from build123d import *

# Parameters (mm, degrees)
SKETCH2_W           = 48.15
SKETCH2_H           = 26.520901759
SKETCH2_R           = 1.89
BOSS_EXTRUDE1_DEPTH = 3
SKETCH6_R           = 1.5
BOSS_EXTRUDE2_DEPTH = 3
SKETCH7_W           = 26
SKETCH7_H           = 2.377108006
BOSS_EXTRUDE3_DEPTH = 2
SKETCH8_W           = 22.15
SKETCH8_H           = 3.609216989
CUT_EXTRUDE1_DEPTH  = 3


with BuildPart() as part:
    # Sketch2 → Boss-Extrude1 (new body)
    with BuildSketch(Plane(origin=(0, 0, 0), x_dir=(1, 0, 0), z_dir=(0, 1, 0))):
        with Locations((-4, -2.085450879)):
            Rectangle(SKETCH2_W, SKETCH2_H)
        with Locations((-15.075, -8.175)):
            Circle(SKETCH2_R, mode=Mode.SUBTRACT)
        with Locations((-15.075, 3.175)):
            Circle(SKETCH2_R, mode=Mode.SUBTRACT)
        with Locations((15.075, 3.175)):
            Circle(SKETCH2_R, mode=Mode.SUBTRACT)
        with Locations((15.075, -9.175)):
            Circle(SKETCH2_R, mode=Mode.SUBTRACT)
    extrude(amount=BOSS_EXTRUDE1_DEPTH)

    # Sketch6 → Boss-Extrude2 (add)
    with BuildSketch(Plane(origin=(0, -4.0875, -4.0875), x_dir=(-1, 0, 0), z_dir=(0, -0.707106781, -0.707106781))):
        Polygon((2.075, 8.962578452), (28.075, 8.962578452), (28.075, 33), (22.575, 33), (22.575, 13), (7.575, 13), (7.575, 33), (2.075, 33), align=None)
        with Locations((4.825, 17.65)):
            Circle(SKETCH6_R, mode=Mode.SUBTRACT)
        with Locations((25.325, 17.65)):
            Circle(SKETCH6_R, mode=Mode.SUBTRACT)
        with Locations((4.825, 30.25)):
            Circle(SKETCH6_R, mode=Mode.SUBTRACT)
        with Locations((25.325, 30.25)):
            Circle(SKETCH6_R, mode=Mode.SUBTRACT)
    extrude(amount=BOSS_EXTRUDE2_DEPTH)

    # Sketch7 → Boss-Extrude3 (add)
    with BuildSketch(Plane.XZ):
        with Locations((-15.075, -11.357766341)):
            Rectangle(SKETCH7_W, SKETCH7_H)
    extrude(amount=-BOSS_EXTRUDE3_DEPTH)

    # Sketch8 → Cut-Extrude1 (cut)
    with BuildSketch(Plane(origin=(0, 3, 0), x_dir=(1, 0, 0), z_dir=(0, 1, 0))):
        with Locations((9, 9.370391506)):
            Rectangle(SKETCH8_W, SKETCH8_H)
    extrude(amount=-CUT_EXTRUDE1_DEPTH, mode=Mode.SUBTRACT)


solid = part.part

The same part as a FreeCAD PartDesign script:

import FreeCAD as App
import Part
import Sketcher
from FreeCAD import Vector
Q = App.Units.Quantity

doc = App.newDocument("Part")
body = doc.addObject("PartDesign::Body", "Body")

# Sketch on XZ plane
sketch1 = body.newObject("Sketcher::SketchObject", "Sketch")
sketch1.AttachmentSupport = (doc.getObject("XZ_Plane"), [""])
sketch1.MapMode = "FlatFace"
sketch1.addGeometry([
    Part.LineSegment(Vector(-28.1, -11.2, 0), Vector(-28.1, 15.3, 0)),  # 0
    Part.LineSegment(Vector(-28.1, 15.3, 0), Vector(20.1, 15.3, 0)),  # 1
    Part.LineSegment(Vector(20.1, 15.3, 0), Vector(20.1, -11.2, 0)),  # 2
    Part.LineSegment(Vector(20.1, -11.2, 0), Vector(-28.1, -11.2, 0)),  # 3
    Part.Circle(Vector(-15.1, 8.2, 0), Vector(0, 0, 1), 1.9),  # 4
    Part.Circle(Vector(15.1, 9.2, 0), Vector(0, 0, 1), 1.9),  # 5
    Part.Circle(Vector(-15.1, -3.2, 0), Vector(0, 0, 1), 1.9),  # 6
    Part.Circle(Vector(15.1, -3.2, 0), Vector(0, 0, 1), 1.9),  # 7
], False)
sketch1.addConstraint([
    Sketcher.Constraint("Coincident", 0, 2, 1, 1),
    Sketcher.Constraint("Coincident", 1, 2, 2, 1),
    Sketcher.Constraint("Coincident", 2, 2, 3, 1),
    Sketcher.Constraint("Coincident", 3, 2, 0, 1),
    Sketcher.Constraint("Vertical", 0),
    Sketcher.Constraint("Horizontal", 1),
    Sketcher.Constraint("Vertical", 2),
    Sketcher.Constraint("Horizontal", 3),
    Sketcher.Constraint("Equal", 4, 5),
    Sketcher.Constraint("Equal", 5, 6),
    Sketcher.Constraint("Equal", 6, 7),
    Sketcher.Constraint("Symmetric", 6, 3, 7, 3, -2),
    Sketcher.Constraint("Vertical", 4, 3, 6, 3),
    Sketcher.Constraint("Vertical", 5, 3, 7, 3),
    Sketcher.Constraint("Diameter", 4, Q("3.78 mm")),
    Sketcher.Constraint("DistanceY", 4, 3, 5, 3, Q("1 mm")),
    Sketcher.Constraint("DistanceX", 0, 2, 4, 3, Q("13 mm")),
    Sketcher.Constraint("DistanceX", 5, 3, 1, 2, Q("5 mm")),
    Sketcher.Constraint("DistanceY", 2, 2, 7, 3, Q("8 mm")),
    Sketcher.Constraint("DistanceX", 1, 1, 1, 2, Q("48.15 mm")),
    Sketcher.Constraint("DistanceY", 6, 3, 4, 3, Q("11.35 mm")),
    Sketcher.Constraint("DistanceY", 0, 1, 0, 2, Q("26.520902 mm")),
    Sketcher.Constraint("DistanceY", -1, 1, 4, 3, Q("8.175 mm")),
])
pad1 = body.newObject("PartDesign::Pad", "Pad")
pad1.Profile = sketch1
pad1.Length = 3
pad1.Reversed = True

# Sketch on an angled plane
sketch2 = body.newObject("Sketcher::SketchObject", "Sketch001")
sketch2.Placement = App.Placement(Vector(0, -4.0875, -4.0875), App.Rotation(Vector(-1, 0, 0), Vector(0, 0.707106781, -0.707106781), Vector(0, -0.707106781, -0.707106781), "ZXY"))
sketch2.addGeometry([
    Part.LineSegment(Vector(2.1, 9, 0), Vector(28.1, 9, 0)),  # 0
    Part.LineSegment(Vector(28.1, 9, 0), Vector(28.1, 33, 0)),  # 1
    Part.LineSegment(Vector(28.1, 33, 0), Vector(22.6, 33, 0)),  # 2
    Part.LineSegment(Vector(22.6, 33, 0), Vector(22.6, 13, 0)),  # 3
    Part.LineSegment(Vector(22.6, 13, 0), Vector(7.6, 13, 0)),  # 4
    Part.LineSegment(Vector(7.6, 13, 0), Vector(7.6, 33, 0)),  # 5
    Part.LineSegment(Vector(7.6, 33, 0), Vector(2.1, 33, 0)),  # 6
    Part.LineSegment(Vector(2.1, 33, 0), Vector(2.1, 9, 0)),  # 7
    Part.Circle(Vector(4.8, 17.6, 0), Vector(0, 0, 1), 1.5),  # 8
    Part.Circle(Vector(25.3, 17.6, 0), Vector(0, 0, 1), 1.5),  # 9
    Part.Circle(Vector(4.8, 30.2, 0), Vector(0, 0, 1), 1.5),  # 10
    Part.Circle(Vector(25.3, 30.2, 0), Vector(0, 0, 1), 1.5),  # 11
], False)
sketch2.addConstraint([
    Sketcher.Constraint("Coincident", 0, 2, 1, 1),
    Sketcher.Constraint("Coincident", 1, 2, 2, 1),
    Sketcher.Constraint("Coincident", 2, 2, 3, 1),
    Sketcher.Constraint("Coincident", 3, 2, 4, 1),
    Sketcher.Constraint("Coincident", 4, 2, 5, 1),
    Sketcher.Constraint("Coincident", 5, 2, 6, 1),
    Sketcher.Constraint("Coincident", 6, 2, 7, 1),
    Sketcher.Constraint("Coincident", 7, 2, 0, 1),
    Sketcher.Constraint("Horizontal", 0),
    Sketcher.Constraint("Vertical", 1),
    Sketcher.Constraint("Horizontal", 2),
    Sketcher.Constraint("Vertical", 3),
    Sketcher.Constraint("Horizontal", 4),
    Sketcher.Constraint("Vertical", 5),
    Sketcher.Constraint("Horizontal", 6),
    Sketcher.Constraint("Vertical", 7),
    Sketcher.Constraint("Equal", 8, 9),
    Sketcher.Constraint("Equal", 9, 10),
    Sketcher.Constraint("Equal", 10, 11),
    Sketcher.Constraint("Horizontal", 8, 3, 9, 3),
    Sketcher.Constraint("Horizontal", 10, 3, 11, 3),
    Sketcher.Constraint("Horizontal", 2, 2, 5, 2),
    Sketcher.Constraint("Vertical", 8, 3, 10, 3),
    Sketcher.Constraint("Vertical", 9, 3, 11, 3),
    Sketcher.Constraint("Equal", 2, 6),
    Sketcher.Constraint("Diameter", 8, Q("3 mm")),
    Sketcher.Constraint("DistanceX", 0, 1, 0, 2, Q("26 mm")),
    Sketcher.Constraint("DistanceX", 4, 2, 4, 1, Q("15 mm")),
    Sketcher.Constraint("DistanceY", 3, 2, 3, 1, Q("20 mm")),
    Sketcher.Constraint("DistanceY", -1, 1, 1, 2, Q("33 mm")),
    Sketcher.Constraint("DistanceX", 8, 3, 9, 3, Q("20.5 mm")),
    Sketcher.Constraint("DistanceY", 8, 3, 10, 3, Q("12.6 mm")),
    Sketcher.Constraint("DistanceY", -1, 1, 8, 3, Q("17.65 mm")),
    Sketcher.Constraint("DistanceX", 9, 3, 0, 2, Q("2.75 mm")),
    Sketcher.Constraint("DistanceX", -1, 1, 8, 3, Q("4.825 mm")),
    Sketcher.Constraint("DistanceY", 1, 1, 1, 2, Q("24.037422 mm")),
])
pad2 = body.newObject("PartDesign::Pad", "Pad001")
pad2.Profile = sketch2
pad2.Length = 3

# Sketch on XZ plane
sketch3 = body.newObject("Sketcher::SketchObject", "Sketch002")
sketch3.AttachmentSupport = (doc.getObject("XZ_Plane"), [""])
sketch3.MapMode = "FlatFace"
sketch3.addGeometry([
    Part.LineSegment(Vector(-28.1, -10.2, 0), Vector(-28.1, -12.5, 0)),
    Part.LineSegment(Vector(-28.1, -12.5, 0), Vector(-2.1, -12.5, 0)),
    Part.LineSegment(Vector(-2.1, -12.5, 0), Vector(-2.1, -10.2, 0)),
    Part.LineSegment(Vector(-2.1, -10.2, 0), Vector(-28.1, -10.2, 0)),
], False)
sketch3.addConstraint([
    Sketcher.Constraint("Coincident", 0, 2, 1, 1),
    Sketcher.Constraint("Coincident", 1, 2, 2, 1),
    Sketcher.Constraint("Coincident", 2, 2, 3, 1),
    Sketcher.Constraint("Coincident", 3, 2, 0, 1),
    Sketcher.Constraint("Vertical", 0),
    Sketcher.Constraint("Horizontal", 1),
    Sketcher.Constraint("Vertical", 2),
    Sketcher.Constraint("Horizontal", 3),
    Sketcher.Constraint("DistanceX", 1, 1, 1, 2, Q("26 mm")),
    Sketcher.Constraint("DistanceX", 0, 2, -1, 1, Q("28.075 mm")),
    Sketcher.Constraint("DistanceY", 0, 2, 0, 1, Q("2.377108 mm")),
    Sketcher.Constraint("DistanceY", 0, 2, -1, 1, Q("12.54632 mm")),
])
pad3 = body.newObject("PartDesign::Pad", "Pad002")
pad3.Profile = sketch3
pad3.Length = 2
pad3.Reversed = True

# Sketch on XZ plane
sketch4 = body.newObject("Sketcher::SketchObject", "Sketch003")
sketch4.AttachmentSupport = (doc.getObject("XZ_Plane"), [""])
sketch4.MapMode = "FlatFace"
sketch4.AttachmentOffset = App.Placement(Vector(0, 0, -3), App.Rotation())
sketch4.addGeometry([
    Part.LineSegment(Vector(-2.1, -11.2, 0), Vector(-2.1, -7.6, 0)),
    Part.LineSegment(Vector(-2.1, -7.6, 0), Vector(20.1, -7.6, 0)),
    Part.LineSegment(Vector(20.1, -7.6, 0), Vector(20.1, -11.2, 0)),
    Part.LineSegment(Vector(20.1, -11.2, 0), Vector(-2.1, -11.2, 0)),
], False)
sketch4.addConstraint([
    Sketcher.Constraint("Coincident", 0, 2, 1, 1),
    Sketcher.Constraint("Coincident", 1, 2, 2, 1),
    Sketcher.Constraint("Coincident", 2, 2, 3, 1),
    Sketcher.Constraint("Coincident", 3, 2, 0, 1),
    Sketcher.Constraint("Vertical", 0),
    Sketcher.Constraint("Horizontal", 1),
    Sketcher.Constraint("Vertical", 2),
    Sketcher.Constraint("Horizontal", 3),
    Sketcher.Constraint("DistanceX", 1, 1, 1, 2, Q("22.15 mm")),
    Sketcher.Constraint("DistanceX", 0, 2, -1, 1, Q("2.075 mm")),
    Sketcher.Constraint("DistanceY", 2, 2, -1, 1, Q("11.175 mm")),
    Sketcher.Constraint("DistanceY", 0, 1, 0, 2, Q("3.609217 mm")),
])
pocket1 = body.newObject("PartDesign::Pocket", "Pocket")
pocket1.Profile = sketch4
pocket1.Length = 3
pocket1.Reversed = True

doc.recompute()
